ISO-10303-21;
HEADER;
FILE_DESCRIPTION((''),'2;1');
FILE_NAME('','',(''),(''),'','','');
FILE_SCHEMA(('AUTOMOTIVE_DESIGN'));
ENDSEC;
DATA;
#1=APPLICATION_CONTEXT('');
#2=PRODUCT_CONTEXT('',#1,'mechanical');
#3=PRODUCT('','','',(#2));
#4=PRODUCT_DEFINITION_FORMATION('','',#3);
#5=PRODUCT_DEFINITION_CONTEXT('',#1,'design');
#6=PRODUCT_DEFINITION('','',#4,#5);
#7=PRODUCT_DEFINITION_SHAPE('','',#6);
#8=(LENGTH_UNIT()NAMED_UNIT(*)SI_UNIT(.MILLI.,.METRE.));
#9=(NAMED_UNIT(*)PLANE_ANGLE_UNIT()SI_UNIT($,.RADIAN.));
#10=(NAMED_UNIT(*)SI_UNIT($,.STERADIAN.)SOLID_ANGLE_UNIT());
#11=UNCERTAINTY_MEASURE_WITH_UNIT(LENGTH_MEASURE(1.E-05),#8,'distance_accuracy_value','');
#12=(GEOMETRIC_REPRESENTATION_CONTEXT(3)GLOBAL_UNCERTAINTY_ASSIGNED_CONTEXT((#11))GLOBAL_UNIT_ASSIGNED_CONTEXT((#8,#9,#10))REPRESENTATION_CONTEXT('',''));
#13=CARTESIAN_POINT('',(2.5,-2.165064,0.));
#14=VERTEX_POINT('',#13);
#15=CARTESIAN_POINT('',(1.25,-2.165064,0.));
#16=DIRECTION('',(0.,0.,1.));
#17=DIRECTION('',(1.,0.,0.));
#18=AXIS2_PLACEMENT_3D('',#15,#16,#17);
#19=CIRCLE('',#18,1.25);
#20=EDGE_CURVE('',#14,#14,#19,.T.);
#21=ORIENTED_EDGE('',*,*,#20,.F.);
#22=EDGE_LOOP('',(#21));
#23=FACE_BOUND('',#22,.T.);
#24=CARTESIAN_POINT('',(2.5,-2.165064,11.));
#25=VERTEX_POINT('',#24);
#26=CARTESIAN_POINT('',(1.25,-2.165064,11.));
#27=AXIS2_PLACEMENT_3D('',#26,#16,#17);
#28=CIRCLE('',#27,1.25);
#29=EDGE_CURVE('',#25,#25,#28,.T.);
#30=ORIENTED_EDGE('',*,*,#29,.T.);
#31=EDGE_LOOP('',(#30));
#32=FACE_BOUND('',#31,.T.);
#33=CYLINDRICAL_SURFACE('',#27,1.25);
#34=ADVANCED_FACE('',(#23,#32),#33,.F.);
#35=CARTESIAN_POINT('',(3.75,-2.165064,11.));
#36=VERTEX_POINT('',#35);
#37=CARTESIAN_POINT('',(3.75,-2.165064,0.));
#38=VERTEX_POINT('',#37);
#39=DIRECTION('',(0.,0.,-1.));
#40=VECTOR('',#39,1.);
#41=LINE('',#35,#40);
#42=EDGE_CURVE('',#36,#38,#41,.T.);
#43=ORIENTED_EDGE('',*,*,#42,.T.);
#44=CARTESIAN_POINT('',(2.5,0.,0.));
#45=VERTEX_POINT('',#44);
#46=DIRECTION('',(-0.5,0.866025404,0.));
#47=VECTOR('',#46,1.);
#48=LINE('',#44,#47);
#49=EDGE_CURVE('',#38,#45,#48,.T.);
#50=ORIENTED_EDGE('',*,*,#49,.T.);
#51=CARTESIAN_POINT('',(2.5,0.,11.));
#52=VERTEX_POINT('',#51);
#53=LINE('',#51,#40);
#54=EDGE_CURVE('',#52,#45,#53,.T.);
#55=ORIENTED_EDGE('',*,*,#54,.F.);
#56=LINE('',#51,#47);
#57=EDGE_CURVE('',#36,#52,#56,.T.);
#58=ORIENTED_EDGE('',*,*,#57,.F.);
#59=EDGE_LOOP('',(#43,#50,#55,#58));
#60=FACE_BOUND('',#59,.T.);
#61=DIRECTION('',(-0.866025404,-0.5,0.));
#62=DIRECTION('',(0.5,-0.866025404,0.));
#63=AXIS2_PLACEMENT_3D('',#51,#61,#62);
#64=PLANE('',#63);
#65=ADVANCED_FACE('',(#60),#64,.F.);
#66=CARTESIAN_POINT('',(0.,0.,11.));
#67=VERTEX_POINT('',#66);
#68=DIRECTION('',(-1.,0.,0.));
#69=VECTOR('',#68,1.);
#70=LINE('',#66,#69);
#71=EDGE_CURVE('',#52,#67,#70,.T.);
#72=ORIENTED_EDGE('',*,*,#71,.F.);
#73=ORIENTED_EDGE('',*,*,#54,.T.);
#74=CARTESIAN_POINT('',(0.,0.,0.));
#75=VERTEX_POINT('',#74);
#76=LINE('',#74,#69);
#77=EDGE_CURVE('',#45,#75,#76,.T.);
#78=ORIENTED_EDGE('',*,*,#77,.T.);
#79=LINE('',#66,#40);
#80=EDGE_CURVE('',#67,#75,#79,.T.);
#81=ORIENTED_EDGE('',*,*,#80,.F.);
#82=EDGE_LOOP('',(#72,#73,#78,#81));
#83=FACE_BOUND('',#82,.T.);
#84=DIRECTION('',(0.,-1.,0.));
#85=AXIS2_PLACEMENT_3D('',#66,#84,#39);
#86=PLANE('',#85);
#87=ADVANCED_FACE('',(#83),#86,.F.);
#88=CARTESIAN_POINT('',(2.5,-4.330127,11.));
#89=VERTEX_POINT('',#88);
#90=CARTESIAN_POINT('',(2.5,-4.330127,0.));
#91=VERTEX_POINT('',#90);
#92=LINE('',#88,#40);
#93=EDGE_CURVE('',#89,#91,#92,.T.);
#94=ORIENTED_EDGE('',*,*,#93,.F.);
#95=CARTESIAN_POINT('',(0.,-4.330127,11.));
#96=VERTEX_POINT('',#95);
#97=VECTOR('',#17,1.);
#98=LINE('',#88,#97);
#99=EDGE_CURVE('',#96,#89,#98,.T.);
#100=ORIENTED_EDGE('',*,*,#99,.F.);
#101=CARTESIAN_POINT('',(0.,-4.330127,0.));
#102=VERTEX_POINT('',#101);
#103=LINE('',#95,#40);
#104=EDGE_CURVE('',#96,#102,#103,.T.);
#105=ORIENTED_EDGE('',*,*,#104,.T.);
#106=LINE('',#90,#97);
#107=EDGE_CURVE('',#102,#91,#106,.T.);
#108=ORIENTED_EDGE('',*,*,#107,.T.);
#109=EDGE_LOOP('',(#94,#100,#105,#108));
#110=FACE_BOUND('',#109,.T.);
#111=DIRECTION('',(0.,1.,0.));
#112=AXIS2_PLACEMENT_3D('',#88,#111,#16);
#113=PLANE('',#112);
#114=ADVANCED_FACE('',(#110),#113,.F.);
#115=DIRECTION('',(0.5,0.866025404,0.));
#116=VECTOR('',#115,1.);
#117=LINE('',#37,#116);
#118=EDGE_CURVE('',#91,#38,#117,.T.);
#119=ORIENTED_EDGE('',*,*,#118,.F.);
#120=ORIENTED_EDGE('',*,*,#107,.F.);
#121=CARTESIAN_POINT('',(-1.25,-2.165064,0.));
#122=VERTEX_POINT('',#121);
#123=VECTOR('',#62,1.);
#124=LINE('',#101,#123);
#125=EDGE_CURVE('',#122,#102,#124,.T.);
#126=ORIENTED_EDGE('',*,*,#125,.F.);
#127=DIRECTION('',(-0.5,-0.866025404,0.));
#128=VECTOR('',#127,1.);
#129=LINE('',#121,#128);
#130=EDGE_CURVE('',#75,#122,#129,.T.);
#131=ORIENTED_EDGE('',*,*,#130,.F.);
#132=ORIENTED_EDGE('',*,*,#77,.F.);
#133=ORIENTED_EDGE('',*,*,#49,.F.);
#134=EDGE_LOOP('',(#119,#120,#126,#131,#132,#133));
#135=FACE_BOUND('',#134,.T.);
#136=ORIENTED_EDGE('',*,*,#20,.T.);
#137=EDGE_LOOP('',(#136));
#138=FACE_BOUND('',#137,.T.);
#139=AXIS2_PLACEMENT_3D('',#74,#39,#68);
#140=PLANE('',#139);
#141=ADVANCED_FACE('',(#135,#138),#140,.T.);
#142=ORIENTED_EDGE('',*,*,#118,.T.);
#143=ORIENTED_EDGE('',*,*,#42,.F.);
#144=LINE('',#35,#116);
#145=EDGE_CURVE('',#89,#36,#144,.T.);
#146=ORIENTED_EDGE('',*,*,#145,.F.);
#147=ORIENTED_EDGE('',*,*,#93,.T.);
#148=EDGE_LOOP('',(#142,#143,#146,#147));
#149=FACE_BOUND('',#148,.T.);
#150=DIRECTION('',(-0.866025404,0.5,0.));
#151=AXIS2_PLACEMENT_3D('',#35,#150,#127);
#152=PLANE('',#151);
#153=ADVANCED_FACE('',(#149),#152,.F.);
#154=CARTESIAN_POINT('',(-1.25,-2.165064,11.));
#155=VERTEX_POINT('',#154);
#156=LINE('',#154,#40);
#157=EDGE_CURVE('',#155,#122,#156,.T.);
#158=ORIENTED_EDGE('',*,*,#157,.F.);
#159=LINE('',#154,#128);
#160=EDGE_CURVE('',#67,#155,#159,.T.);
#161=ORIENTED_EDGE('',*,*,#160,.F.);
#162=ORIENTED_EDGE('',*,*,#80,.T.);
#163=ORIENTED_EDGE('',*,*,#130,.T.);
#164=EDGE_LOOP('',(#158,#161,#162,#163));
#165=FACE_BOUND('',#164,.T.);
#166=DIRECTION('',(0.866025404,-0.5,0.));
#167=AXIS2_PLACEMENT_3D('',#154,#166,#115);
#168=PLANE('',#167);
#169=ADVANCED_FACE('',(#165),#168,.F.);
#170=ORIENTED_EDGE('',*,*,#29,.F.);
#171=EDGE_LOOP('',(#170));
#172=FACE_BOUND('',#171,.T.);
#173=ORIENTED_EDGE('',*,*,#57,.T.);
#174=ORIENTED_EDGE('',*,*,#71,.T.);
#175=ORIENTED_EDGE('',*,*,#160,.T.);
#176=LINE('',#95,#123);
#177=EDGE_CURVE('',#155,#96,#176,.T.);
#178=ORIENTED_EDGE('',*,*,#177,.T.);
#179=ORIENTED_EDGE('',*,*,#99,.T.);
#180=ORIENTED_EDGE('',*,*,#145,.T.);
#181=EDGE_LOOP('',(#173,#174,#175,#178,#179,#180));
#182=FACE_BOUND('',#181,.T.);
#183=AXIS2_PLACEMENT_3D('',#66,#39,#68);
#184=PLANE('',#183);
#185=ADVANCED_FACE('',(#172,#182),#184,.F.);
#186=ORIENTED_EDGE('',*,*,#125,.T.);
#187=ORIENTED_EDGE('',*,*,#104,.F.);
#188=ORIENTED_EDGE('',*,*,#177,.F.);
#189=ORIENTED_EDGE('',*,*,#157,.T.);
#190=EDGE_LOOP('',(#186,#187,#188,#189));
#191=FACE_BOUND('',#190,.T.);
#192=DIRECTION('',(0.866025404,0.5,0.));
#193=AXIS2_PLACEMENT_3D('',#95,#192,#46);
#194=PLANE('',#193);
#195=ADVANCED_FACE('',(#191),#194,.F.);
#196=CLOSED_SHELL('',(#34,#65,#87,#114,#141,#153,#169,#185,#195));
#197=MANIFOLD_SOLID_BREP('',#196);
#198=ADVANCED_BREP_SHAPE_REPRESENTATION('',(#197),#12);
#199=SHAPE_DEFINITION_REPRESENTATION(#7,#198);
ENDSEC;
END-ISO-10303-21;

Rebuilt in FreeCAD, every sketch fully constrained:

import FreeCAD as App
import Part
import Sketcher
Q = App.Units.Quantity

doc = App.newDocument("Part")
body = doc.addObject("PartDesign::Body", "Body")

sketch1 = body.newObject("Sketcher::SketchObject", "Sketch")
sketch1.AttachmentSupport = (doc.getObject("XY_Plane"), [""])
sketch1.MapMode = "FlatFace"
sketch1.addGeometry([
    Part.LineSegment(App.Vector(2.5, 0, 0), App.Vector(0, 0, 0)),
    Part.LineSegment(App.Vector(0, 0, 0), App.Vector(-1.2, -2.2, 0)),
    Part.LineSegment(App.Vector(-1.2, -2.2, 0), App.Vector(0, -4.3, 0)),
    Part.LineSegment(App.Vector(0, -4.3, 0), App.Vector(2.5, -4.3, 0)),
    Part.LineSegment(App.Vector(2.5, -4.3, 0), App.Vector(3.8, -2.2, 0)),
    Part.LineSegment(App.Vector(3.8, -2.2, 0), App.Vector(2.5, 0, 0)),
], False)
sketch1.addConstraint([
    Sketcher.Constraint("Coincident", 0, 2, 1, 1),
    Sketcher.Constraint("Coincident", 1, 2, 2, 1),
    Sketcher.Constraint("Coincident", 2, 2, 3, 1),
    Sketcher.Constraint("Coincident", 3, 2, 4, 1),
    Sketcher.Constraint("Coincident", 4, 2, 5, 1),
    Sketcher.Constraint("Coincident", 5, 2, 0, 1),
    Sketcher.Constraint("Horizontal", 0),
    Sketcher.Constraint("Horizontal", 3),
    Sketcher.Constraint("Coincident", 0, 2, -1, 1),
    Sketcher.Constraint("PointOnObject", 2, 2, -2),
    Sketcher.Constraint("Parallel", 1, 4),
    Sketcher.Constraint("Parallel", 2, 5),
    Sketcher.Constraint("Horizontal", 1, 2, 4, 2),
    Sketcher.Constraint("Vertical", 3, 2, 5, 2),
    Sketcher.Constraint("Angle", 1, Q("-120 deg")),
    Sketcher.Constraint("DistanceX", 0, 2, 0, 1, 2.5),
    Sketcher.Constraint("DistanceX", 1, 2, 4, 2, 5.0),
])
pad1 = body.newObject("PartDesign::Pad", "Pad")
pad1.Profile = sketch1
pad1.Length = 11

sketch2 = body.newObject("Sketcher::SketchObject", "Sketch001")
sketch2.AttachmentSupport = (doc.getObject("XY_Plane"), [""])
sketch2.MapMode = "FlatFace"
sketch2.AttachmentOffset = App.Placement(App.Vector(0, 0, 11), App.Rotation())
sketch2.addGeometry(Part.Circle(App.Vector(1.2, -2.2, 0), App.Vector(0, 0, 1), 1.2), False)
sketch2.addConstraint([
    Sketcher.Constraint("Diameter", 0, 2.5),
    Sketcher.Constraint("DistanceX", -1, 1, 0, 3, 1.25),
    Sketcher.Constraint("DistanceY", 0, 3, -1, 1, 2.165064),
])
doc.recompute()
hole = body.newObject("PartDesign::Hole", "Hole")
hole.Profile = sketch2
hole.ThreadType = "None"
hole.Diameter = 2.5
hole.DepthType = "ThroughAll"

doc.recompute()
